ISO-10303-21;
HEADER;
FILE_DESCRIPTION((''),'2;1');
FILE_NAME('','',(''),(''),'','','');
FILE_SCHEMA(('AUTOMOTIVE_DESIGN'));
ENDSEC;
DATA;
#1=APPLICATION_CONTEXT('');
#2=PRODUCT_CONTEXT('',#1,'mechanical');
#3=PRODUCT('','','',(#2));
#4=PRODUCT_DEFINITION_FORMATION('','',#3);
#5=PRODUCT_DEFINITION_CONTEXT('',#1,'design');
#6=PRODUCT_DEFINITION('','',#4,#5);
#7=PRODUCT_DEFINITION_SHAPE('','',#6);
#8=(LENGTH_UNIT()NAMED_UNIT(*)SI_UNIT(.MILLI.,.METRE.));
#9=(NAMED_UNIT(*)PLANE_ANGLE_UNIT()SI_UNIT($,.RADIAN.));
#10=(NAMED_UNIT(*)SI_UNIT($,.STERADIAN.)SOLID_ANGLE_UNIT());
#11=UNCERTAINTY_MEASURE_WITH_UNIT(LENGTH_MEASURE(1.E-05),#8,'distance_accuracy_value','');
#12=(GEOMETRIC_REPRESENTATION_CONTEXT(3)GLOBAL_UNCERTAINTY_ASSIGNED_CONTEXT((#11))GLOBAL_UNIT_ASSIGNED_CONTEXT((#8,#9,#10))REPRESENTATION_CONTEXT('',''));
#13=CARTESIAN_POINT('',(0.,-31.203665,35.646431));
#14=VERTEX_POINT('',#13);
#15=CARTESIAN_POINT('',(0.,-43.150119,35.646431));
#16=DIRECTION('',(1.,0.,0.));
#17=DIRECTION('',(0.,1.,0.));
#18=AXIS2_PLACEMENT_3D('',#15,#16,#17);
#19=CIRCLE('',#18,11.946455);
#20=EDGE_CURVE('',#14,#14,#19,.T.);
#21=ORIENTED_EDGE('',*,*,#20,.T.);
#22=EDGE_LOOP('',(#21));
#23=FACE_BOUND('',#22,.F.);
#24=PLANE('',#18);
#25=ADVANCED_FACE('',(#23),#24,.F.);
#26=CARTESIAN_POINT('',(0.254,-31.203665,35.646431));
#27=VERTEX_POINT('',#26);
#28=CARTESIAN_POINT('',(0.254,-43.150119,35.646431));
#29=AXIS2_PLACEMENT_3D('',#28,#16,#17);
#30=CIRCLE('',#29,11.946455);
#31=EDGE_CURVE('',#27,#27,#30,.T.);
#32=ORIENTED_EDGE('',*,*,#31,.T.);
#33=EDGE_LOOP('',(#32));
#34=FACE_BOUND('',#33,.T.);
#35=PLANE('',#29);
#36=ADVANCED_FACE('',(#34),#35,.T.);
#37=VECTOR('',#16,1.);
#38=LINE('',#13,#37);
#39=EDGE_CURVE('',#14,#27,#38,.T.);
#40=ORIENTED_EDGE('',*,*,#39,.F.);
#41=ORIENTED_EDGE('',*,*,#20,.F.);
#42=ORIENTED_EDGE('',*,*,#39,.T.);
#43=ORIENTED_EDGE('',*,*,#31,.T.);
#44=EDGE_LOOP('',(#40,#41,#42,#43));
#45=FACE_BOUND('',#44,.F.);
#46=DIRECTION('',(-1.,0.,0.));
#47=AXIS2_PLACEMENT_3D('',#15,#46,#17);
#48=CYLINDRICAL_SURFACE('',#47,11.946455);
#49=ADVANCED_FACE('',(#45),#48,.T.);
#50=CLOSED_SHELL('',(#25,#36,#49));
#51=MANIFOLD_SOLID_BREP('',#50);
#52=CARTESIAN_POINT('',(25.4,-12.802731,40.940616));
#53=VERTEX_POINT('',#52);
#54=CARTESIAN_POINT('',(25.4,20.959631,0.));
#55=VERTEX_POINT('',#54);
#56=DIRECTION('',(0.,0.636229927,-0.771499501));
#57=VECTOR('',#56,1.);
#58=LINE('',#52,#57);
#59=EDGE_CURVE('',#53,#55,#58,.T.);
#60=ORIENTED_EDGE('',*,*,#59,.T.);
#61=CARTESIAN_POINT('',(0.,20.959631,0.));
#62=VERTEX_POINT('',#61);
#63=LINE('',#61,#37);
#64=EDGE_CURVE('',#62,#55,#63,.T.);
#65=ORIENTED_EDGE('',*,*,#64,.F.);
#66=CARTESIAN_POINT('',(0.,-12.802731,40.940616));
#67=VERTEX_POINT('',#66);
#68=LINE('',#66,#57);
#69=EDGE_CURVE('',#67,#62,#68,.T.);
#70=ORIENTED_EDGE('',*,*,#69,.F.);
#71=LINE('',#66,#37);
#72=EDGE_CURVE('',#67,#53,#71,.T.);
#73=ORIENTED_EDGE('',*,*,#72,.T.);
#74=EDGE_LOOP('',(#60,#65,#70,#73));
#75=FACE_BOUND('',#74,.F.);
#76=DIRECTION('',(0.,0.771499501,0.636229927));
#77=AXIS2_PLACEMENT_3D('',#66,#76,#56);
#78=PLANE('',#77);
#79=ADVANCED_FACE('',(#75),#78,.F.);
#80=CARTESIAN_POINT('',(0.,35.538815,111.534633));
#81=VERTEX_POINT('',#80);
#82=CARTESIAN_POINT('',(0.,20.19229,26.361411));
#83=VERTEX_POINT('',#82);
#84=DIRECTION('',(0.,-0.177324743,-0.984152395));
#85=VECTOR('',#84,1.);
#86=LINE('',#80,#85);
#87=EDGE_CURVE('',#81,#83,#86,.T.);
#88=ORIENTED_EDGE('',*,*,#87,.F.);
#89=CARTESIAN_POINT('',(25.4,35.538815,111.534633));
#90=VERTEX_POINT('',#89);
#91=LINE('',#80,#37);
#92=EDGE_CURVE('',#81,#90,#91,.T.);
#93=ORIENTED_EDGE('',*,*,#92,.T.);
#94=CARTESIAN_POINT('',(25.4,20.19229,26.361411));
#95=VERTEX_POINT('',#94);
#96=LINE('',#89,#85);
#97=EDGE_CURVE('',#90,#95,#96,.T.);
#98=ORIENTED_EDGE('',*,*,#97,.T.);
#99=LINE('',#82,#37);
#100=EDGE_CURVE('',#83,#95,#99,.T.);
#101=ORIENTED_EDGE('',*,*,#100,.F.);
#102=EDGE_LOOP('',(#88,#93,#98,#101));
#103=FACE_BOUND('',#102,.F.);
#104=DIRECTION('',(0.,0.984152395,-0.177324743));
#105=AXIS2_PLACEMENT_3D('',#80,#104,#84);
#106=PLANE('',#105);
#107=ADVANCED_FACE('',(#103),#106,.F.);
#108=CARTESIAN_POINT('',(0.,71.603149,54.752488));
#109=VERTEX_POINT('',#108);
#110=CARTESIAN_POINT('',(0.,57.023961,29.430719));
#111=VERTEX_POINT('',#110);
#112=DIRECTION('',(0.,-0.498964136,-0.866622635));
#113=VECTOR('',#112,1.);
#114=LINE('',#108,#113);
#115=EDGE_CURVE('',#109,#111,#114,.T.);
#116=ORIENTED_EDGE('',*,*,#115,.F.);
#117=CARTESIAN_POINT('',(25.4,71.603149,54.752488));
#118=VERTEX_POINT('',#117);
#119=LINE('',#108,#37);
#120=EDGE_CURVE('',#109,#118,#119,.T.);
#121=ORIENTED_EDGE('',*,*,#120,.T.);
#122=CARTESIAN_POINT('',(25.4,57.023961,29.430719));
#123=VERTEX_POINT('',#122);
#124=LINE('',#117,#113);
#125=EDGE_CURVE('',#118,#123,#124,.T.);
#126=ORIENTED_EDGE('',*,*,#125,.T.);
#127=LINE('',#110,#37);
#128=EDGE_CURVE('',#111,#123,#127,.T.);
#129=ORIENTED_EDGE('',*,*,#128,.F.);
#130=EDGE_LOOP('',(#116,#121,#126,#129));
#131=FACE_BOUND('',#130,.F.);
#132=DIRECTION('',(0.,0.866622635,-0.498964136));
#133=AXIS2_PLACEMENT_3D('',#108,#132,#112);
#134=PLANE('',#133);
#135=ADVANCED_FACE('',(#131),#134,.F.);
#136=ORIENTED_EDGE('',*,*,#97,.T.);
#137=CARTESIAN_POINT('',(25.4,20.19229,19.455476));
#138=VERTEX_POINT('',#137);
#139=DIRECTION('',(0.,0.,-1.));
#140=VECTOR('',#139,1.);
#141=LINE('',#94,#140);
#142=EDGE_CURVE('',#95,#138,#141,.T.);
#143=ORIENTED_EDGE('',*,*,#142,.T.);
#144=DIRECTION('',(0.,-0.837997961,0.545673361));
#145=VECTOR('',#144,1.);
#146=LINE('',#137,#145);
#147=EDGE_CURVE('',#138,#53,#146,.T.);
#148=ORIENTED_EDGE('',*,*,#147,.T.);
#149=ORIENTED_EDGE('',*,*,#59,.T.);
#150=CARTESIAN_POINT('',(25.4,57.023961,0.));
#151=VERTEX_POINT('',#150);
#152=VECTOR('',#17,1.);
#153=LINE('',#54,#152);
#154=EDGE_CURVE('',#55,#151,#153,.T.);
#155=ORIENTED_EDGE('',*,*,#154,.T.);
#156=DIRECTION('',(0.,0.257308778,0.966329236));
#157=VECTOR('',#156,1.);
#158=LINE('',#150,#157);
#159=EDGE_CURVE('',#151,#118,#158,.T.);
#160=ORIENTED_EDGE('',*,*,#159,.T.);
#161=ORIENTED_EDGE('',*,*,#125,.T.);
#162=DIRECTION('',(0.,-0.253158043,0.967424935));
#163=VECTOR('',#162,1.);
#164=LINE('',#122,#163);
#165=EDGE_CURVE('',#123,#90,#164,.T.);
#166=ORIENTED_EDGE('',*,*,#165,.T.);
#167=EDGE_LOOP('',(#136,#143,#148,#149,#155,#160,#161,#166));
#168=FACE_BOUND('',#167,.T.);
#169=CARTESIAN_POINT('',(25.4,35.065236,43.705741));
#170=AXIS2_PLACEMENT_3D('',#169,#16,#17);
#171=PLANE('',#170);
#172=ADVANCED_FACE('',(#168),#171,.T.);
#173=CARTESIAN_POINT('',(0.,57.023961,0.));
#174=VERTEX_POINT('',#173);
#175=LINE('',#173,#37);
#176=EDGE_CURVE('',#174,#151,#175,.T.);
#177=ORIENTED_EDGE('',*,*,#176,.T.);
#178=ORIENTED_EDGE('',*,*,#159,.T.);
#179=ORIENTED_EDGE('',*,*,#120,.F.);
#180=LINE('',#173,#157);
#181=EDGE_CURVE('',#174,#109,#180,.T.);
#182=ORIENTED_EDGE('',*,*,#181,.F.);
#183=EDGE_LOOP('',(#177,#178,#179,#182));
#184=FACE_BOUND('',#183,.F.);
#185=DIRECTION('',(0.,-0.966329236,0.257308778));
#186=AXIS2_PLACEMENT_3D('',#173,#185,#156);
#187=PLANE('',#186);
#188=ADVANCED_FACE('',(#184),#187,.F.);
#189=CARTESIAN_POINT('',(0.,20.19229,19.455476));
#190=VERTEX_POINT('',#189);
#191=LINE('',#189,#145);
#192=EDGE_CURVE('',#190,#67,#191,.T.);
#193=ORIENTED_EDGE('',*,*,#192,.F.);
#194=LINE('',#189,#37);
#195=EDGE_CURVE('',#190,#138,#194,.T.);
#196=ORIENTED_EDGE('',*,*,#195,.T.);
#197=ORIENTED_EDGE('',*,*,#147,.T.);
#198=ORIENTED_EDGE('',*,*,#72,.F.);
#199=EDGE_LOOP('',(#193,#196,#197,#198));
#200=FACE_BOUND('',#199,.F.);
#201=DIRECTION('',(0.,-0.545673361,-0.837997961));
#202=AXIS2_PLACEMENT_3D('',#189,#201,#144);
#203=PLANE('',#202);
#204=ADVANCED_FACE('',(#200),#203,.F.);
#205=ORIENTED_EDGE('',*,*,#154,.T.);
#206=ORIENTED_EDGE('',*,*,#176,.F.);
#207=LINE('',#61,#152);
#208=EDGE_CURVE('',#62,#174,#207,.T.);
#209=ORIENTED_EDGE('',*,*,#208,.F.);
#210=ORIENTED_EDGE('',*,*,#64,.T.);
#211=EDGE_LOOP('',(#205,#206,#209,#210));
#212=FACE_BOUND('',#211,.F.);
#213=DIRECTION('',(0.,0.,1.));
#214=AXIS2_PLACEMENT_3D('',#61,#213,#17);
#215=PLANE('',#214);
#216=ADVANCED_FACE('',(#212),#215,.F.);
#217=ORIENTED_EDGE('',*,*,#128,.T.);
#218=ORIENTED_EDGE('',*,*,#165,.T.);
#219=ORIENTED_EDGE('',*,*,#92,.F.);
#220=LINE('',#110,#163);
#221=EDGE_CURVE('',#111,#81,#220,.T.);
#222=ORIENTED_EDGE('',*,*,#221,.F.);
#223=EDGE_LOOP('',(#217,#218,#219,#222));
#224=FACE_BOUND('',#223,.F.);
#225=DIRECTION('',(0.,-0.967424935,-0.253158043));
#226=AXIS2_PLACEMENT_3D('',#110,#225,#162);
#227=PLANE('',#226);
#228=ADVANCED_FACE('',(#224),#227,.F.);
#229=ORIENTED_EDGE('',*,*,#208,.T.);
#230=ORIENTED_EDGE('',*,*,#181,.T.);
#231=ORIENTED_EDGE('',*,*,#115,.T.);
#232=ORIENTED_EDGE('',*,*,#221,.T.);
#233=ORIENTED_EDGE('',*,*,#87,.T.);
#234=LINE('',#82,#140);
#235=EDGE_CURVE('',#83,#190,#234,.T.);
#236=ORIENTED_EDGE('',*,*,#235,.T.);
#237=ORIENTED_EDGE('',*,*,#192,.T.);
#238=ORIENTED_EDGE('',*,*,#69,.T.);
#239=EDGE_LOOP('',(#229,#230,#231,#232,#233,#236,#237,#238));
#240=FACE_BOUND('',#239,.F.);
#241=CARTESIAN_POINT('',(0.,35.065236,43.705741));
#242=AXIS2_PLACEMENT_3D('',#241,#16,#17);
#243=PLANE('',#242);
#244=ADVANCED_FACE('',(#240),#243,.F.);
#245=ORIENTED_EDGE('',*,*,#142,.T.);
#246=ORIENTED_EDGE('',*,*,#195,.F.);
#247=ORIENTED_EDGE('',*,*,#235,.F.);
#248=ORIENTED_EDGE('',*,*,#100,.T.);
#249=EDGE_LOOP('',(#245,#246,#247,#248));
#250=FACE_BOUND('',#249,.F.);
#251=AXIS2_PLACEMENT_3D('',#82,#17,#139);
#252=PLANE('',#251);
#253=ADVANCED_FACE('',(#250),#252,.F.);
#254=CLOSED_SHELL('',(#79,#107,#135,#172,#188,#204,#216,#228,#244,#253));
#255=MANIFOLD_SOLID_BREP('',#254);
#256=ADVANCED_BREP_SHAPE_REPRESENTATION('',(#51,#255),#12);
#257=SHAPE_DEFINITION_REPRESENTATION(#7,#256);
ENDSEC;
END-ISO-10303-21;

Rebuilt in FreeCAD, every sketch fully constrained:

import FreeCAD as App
import Part
import Sketcher
Q = App.Units.Quantity

doc = App.newDocument("Part")
body = doc.addObject("PartDesign::Body", "Body")

sketch1 = doc.addObject("Sketcher::SketchObject", "Sketch")
body.addObject(sketch1)
sketch1.AttachmentSupport = (doc.YZ_Plane, [""])
sketch1.MapMode = "FlatFace"
sketch1.addGeometry(Part.Circle(App.Vector(-61, 39, 0), App.Vector(0, 0, 1), 14), False)
sketch1.addConstraint([
    Sketcher.Constraint("Diameter", 0, Q("28.179499 mm")),
    Sketcher.Constraint("DistanceY", -1, 1, 0, 3, Q("38.547982 mm")),
    Sketcher.Constraint("DistanceX", 0, 3, -1, 1, Q("60.509432 mm")),
])
pad1 = doc.addObject("PartDesign::Pad", "Pad")
body.addObject(pad1)
pad1.Profile = sketch1
pad1.Length = Q("0.01 in")
body2 = doc.addObject("PartDesign::Body", "Body001")

sketch2 = doc.addObject("Sketcher::SketchObject", "Sketch001")
body2.addObject(sketch2)
sketch2.AttachmentSupport = (doc.getObject("YZ_Plane001"), [""])
sketch2.MapMode = "FlatFace"
sketch2.addGeometry(Part.Circle(App.Vector(-43, 36, 0), App.Vector(0, 0, 1), 12), False)
sketch2.addConstraint([
    Sketcher.Constraint("Diameter", 0, Q("23.89291 mm")),
    Sketcher.Constraint("DistanceX", 0, 3, -1, 1, Q("43.150119 mm")),
    Sketcher.Constraint("DistanceY", -1, 1, 0, 3, Q("35.646431 mm")),
])
pad2 = doc.addObject("PartDesign::Pad", "Pad001")
body2.addObject(pad2)
pad2.Profile = sketch2
pad2.Length = Q("0.01 in")
body3 = doc.addObject("PartDesign::Body", "Body002")

sketch3 = doc.addObject("Sketcher::SketchObject", "Sketch002")
body3.addObject(sketch3)
sketch3.AttachmentSupport = (doc.getObject("YZ_Plane002"), [""])
sketch3.MapMode = "FlatFace"
sketch3.addGeometry([
    Part.LineSegment(App.Vector(36, 112, 0), App.Vector(20, 26, 0)),
    Part.LineSegment(App.Vector(20, 26, 0), App.Vector(20, 19, 0)),
    Part.LineSegment(App.Vector(20, 19, 0), App.Vector(-13, 41, 0)),
    Part.LineSegment(App.Vector(-13, 41, 0), App.Vector(21, 0, 0)),
    Part.LineSegment(App.Vector(21, 0, 0), App.Vector(57, 0, 0)),
    Part.LineSegment(App.Vector(57, 0, 0), App.Vector(72, 55, 0)),
    Part.LineSegment(App.Vector(72, 55, 0), App.Vector(57, 29, 0)),
    Part.LineSegment(App.Vector(57, 29, 0), App.Vector(36, 112, 0)),
], False)
sketch3.addConstraint([
    Sketcher.Constraint("Coincident", 0, 2, 1, 1),
    Sketcher.Constraint("Coincident", 1, 2, 2, 1),
    Sketcher.Constraint("Coincident", 2, 2, 3, 1),
    Sketcher.Constraint("Coincident", 3, 2, 4, 1),
    Sketcher.Constraint("Coincident", 4, 2, 5, 1),
    Sketcher.Constraint("Coincident", 5, 2, 6, 1),
    Sketcher.Constraint("Coincident", 6, 2, 7, 1),
    Sketcher.Constraint("Coincident", 7, 2, 0, 1),
    Sketcher.Constraint("Vertical", 1),
    Sketcher.Constraint("Horizontal", 4),
    Sketcher.Constraint("PointOnObject", 3, 2, -1),
    Sketcher.Constraint("Vertical", 4, 2, 6, 2),
    Sketcher.Constraint("DistanceX", 4, 1, 4, 2, Q("36.06433 mm")),
    Sketcher.Constraint("Distance", 0, Q("86.544748 mm")),
    Sketcher.Constraint("Distance", 2, Q("39.373629 mm")),
    Sketcher.Constraint("Distance", 3, Q("53.06629 mm")),
    Sketcher.Constraint("Distance", 6, Q("29.21891 mm")),
    Sketcher.Constraint("Distance", 7, Q("84.868511 mm")),
    Sketcher.Constraint("DistanceY", 1, 2, 1, 1, Q("6.905936 mm")),
    Sketcher.Constraint("DistanceX", -1, 1, 0, 2, Q("20.19229 mm")),
    Sketcher.Constraint("DistanceY", -1, 1, 0, 2, Q("26.361411 mm")),
    Sketcher.Constraint("DistanceX", 2, 2, -1, 1, Q("12.802731 mm")),
    Sketcher.Constraint("DistanceX", -1, 1, 5, 2, Q("71.603149 mm")),
    Sketcher.Constraint("DistanceY", -1, 1, 6, 2, Q("29.430719 mm")),
])
pad3 = doc.addObject("PartDesign::Pad", "Pad002")
body3.addObject(pad3)
pad3.Profile = sketch3
pad3.Length = Q("1 in")
body.Visibility = False

doc.recompute()
